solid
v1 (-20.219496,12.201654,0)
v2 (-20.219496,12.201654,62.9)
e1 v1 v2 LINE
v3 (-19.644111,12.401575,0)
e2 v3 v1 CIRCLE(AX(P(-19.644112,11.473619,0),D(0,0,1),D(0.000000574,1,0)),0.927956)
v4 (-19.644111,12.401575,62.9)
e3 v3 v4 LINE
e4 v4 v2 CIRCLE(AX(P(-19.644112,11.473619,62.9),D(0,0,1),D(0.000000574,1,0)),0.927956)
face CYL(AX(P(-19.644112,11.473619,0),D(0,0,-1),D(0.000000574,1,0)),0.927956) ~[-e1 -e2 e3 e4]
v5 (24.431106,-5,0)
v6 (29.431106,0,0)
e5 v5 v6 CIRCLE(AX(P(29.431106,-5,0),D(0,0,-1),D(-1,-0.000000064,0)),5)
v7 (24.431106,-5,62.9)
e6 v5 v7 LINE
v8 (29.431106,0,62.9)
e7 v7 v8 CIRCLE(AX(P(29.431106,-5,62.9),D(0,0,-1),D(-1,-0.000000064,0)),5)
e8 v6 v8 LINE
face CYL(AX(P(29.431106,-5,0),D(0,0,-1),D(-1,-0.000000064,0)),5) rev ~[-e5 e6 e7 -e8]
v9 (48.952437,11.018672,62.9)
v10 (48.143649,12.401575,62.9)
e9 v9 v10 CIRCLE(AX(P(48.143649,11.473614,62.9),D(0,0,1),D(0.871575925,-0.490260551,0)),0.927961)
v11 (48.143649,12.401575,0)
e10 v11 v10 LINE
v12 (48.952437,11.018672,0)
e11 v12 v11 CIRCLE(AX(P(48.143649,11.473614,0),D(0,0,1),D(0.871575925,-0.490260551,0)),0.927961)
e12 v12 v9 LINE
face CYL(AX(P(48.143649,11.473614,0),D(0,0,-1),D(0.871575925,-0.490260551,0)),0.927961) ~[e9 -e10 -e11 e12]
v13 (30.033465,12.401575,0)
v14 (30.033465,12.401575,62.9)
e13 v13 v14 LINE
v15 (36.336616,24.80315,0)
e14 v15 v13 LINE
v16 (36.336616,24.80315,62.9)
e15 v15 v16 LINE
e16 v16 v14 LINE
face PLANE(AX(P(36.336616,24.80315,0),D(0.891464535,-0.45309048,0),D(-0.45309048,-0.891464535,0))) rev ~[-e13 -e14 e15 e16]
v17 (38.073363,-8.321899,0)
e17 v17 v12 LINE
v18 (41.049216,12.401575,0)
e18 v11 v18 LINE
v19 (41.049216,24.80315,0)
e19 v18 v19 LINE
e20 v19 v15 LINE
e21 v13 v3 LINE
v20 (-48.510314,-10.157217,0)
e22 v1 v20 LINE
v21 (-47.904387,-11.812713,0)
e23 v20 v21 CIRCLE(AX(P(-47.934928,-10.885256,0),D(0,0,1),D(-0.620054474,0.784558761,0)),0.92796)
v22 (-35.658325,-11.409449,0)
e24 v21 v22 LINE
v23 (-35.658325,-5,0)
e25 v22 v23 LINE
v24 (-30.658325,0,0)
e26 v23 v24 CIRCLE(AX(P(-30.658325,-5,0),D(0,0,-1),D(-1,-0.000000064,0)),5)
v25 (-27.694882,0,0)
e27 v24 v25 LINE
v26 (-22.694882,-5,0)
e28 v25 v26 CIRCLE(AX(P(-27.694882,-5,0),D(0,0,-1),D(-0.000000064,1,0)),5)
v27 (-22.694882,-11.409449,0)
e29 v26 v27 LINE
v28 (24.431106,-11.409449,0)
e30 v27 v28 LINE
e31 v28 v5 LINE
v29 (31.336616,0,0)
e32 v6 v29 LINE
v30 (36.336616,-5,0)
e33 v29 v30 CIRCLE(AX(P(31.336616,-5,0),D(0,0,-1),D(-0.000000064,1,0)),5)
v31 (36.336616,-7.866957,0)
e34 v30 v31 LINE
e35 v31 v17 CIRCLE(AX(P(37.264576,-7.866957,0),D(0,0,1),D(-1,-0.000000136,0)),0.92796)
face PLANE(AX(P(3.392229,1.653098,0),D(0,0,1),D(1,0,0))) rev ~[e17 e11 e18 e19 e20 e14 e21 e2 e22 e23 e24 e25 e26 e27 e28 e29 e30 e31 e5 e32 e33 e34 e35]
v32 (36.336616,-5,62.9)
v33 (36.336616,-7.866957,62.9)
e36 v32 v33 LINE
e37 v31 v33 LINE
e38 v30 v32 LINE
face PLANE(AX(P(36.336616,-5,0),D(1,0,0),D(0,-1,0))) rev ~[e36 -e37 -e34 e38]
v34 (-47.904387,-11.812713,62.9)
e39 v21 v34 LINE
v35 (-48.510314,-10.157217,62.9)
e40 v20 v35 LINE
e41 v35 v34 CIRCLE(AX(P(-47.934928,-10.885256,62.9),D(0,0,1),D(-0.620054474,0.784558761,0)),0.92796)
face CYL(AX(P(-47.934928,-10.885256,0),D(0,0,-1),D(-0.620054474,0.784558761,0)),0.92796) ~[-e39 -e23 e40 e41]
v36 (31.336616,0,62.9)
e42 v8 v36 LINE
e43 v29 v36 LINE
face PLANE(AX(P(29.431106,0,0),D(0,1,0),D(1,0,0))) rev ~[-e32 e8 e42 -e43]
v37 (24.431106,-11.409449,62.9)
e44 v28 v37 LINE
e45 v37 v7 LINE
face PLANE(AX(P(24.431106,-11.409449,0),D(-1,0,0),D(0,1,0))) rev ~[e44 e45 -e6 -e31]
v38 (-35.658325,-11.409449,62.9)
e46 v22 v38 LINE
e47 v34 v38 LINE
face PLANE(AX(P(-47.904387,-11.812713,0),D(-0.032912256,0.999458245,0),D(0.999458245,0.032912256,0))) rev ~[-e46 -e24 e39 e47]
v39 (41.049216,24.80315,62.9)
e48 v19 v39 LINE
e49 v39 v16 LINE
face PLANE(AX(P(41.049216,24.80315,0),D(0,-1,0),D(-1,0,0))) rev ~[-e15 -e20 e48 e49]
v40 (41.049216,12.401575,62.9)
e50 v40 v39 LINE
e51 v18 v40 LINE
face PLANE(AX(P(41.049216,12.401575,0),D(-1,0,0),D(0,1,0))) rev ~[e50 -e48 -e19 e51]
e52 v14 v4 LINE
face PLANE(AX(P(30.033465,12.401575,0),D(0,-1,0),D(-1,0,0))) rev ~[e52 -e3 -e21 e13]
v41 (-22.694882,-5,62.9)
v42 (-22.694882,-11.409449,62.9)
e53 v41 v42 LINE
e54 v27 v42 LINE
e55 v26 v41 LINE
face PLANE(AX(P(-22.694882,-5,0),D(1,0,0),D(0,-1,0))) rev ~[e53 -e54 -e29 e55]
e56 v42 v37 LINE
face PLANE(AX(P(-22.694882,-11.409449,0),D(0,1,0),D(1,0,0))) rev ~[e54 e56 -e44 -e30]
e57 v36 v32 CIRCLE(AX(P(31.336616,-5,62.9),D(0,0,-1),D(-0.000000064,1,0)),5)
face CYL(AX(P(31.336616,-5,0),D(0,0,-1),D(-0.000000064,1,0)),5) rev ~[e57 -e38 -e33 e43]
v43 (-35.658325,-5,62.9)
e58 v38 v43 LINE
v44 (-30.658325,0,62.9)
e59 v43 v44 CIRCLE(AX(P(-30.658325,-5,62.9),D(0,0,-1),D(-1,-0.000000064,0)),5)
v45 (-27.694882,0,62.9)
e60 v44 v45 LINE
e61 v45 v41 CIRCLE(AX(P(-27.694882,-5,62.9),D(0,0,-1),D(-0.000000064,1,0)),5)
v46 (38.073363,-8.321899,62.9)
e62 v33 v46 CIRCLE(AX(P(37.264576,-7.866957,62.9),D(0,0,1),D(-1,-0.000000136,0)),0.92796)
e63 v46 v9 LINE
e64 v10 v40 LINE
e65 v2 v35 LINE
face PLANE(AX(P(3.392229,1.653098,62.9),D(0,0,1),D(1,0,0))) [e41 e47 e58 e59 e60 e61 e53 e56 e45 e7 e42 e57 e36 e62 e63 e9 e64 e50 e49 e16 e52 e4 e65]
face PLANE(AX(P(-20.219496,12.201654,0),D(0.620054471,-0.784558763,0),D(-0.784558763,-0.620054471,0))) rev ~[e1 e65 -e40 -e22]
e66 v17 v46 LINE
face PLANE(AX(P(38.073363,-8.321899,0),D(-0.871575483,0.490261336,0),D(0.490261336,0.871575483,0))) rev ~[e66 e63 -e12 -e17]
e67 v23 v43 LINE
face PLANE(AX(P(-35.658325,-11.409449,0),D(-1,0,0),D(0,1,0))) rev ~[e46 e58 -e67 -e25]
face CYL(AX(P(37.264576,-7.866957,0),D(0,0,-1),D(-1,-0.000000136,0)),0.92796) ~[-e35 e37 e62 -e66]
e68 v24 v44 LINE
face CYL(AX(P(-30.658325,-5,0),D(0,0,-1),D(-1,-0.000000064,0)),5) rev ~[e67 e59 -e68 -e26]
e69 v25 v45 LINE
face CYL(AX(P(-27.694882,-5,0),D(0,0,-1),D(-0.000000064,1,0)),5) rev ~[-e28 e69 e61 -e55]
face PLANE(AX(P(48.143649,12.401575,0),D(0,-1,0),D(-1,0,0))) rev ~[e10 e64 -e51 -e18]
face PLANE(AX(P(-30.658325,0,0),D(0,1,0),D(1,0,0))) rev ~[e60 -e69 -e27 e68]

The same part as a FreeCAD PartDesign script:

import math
import FreeCAD as App
import Part
import Sketcher

doc = App.newDocument("Part")
body = doc.addObject("PartDesign::Body", "Body")

sketch1 = body.newObject("Sketcher::SketchObject", "Sketch")
sketch1.AttachmentSupport = (doc.getObject("XY_Plane"), [""])
sketch1.MapMode = "FlatFace"
sketch1.addGeometry(Part.LineSegment(App.Vector(-20.219496, 12.201654, 0), App.Vector(-48.510314, -10.157217, 0)), False)
sketch1.addGeometry(Part.ArcOfCircle(Part.Circle(App.Vector(-47.934928, -10.885256, 0), App.Vector(0, 0, 1), 0.92796), math.radians(128.320113), math.radians(271.886083)), False)
sketch1.addGeometry(Part.LineSegment(App.Vector(-47.904387, -11.812713, 0), App.Vector(-35.658325, -11.409449, 0)), False)
sketch1.addGeometry(Part.LineSegment(App.Vector(-35.658325, -11.409449, 0), App.Vector(-35.658325, -5, 0)), False)
sketch1.addGeometry(Part.ArcOfCircle(Part.Circle(App.Vector(-30.658325, -5, 0), App.Vector(0, 0, 1), 5), math.radians(89.999996), math.radians(180.000004)), False)
sketch1.addGeometry(Part.LineSegment(App.Vector(-30.658325, 0, 0), App.Vector(-27.694882, 0, 0)), False)
sketch1.addGeometry(Part.ArcOfCircle(Part.Circle(App.Vector(-27.694882, -5, 0), App.Vector(0, 0, 1), 5), math.radians(-0.000004), math.radians(90.000004)), False)
sketch1.addGeometry(Part.LineSegment(App.Vector(-22.694882, -5, 0), App.Vector(-22.694882, -11.409449, 0)), False)
sketch1.addGeometry(Part.LineSegment(App.Vector(-22.694882, -11.409449, 0), App.Vector(24.431106, -11.409449, 0)), False)
sketch1.addGeometry(Part.LineSegment(App.Vector(24.431106, -11.409449, 0), App.Vector(24.431106, -5, 0)), False)
sketch1.addGeometry(Part.ArcOfCircle(Part.Circle(App.Vector(29.431106, -5, 0), App.Vector(0, 0, 1), 5), math.radians(89.999996), math.radians(180.000004)), False)
sketch1.addGeometry(Part.LineSegment(App.Vector(29.431106, 0, 0), App.Vector(31.336616, 0, 0)), False)
sketch1.addGeometry(Part.ArcOfCircle(Part.Circle(App.Vector(31.336616, -5, 0), App.Vector(0, 0, 1), 5), math.radians(-0.000004), math.radians(90.000004)), False)
sketch1.addGeometry(Part.LineSegment(App.Vector(36.336616, -5, 0), App.Vector(36.336616, -7.866957, 0)), False)
sketch1.addGeometry(Part.ArcOfCircle(Part.Circle(App.Vector(37.264576, -7.866957, 0), App.Vector(0, 0, 1), 0.92796), math.radians(-179.999992), math.radians(-29.357715)), False)
sketch1.addGeometry(Part.LineSegment(App.Vector(38.073363, -8.321899, 0), App.Vector(48.952437, 11.018672, 0)), False)
sketch1.addGeometry(Part.ArcOfCircle(Part.Circle(App.Vector(48.143649, 11.473614, 0), App.Vector(0, 0, 1), 0.927961), math.radians(-29.357708), math.radians(89.999995)), False)
sketch1.addGeometry(Part.LineSegment(App.Vector(48.143649, 12.401575, 0), App.Vector(41.049216, 12.401575, 0)), False)
sketch1.addGeometry(Part.LineSegment(App.Vector(41.049216, 12.401575, 0), App.Vector(41.049216, 24.80315, 0)), False)
sketch1.addGeometry(Part.LineSegment(App.Vector(41.049216, 24.80315, 0), App.Vector(36.336616, 24.80315, 0)), False)
sketch1.addGeometry(Part.LineSegment(App.Vector(36.336616, 24.80315, 0), App.Vector(30.033465, 12.401575, 0)), False)
sketch1.addGeometry(Part.LineSegment(App.Vector(30.033465, 12.401575, 0), App.Vector(-19.644111, 12.401575, 0)), False)
sketch1.addGeometry(Part.ArcOfCircle(Part.Circle(App.Vector(-19.644112, 11.473619, 0), App.Vector(0, 0, 1), 0.927956), math.radians(89.999967), math.radians(128.320218)), False)
sketch1.addConstraint(Sketcher.Constraint("Coincident", 0, 2, 1, 1))
sketch1.addConstraint(Sketcher.Constraint("Coincident", 1, 2, 2, 1))
sketch1.addConstraint(Sketcher.Constraint("Coincident", 2, 2, 3, 1))
sketch1.addConstraint(Sketcher.Constraint("Coincident", 3, 2, 4, 2))
sketch1.addConstraint(Sketcher.Constraint("Coincident", 4, 1, 5, 1))
sketch1.addConstraint(Sketcher.Constraint("Coincident", 5, 2, 6, 2))
sketch1.addConstraint(Sketcher.Constraint("Coincident", 6, 1, 7, 1))
sketch1.addConstraint(Sketcher.Constraint("Coincident", 7, 2, 8, 1))
sketch1.addConstraint(Sketcher.Constraint("Coincident", 8, 2, 9, 1))
sketch1.addConstraint(Sketcher.Constraint("Coincident", 9, 2, 10, 2))
sketch1.addConstraint(Sketcher.Constraint("Coincident", 10, 1, 11, 1))
sketch1.addConstraint(Sketcher.Constraint("Coincident", 11, 2, 12, 2))
sketch1.addConstraint(Sketcher.Constraint("Coincident", 12, 1, 13, 1))
sketch1.addConstraint(Sketcher.Constraint("Coincident", 13, 2, 14, 1))
sketch1.addConstraint(Sketcher.Constraint("Coincident", 14, 2, 15, 1))
sketch1.addConstraint(Sketcher.Constraint("Coincident", 15, 2, 16, 1))
sketch1.addConstraint(Sketcher.Constraint("Coincident", 16, 2, 17, 1))
sketch1.addConstraint(Sketcher.Constraint("Coincident", 17, 2, 18, 1))
sketch1.addConstraint(Sketcher.Constraint("Coincident", 18, 2, 19, 1))
sketch1.addConstraint(Sketcher.Constraint("Coincident", 19, 2, 20, 1))
sketch1.addConstraint(Sketcher.Constraint("Coincident", 20, 2, 21, 1))
sketch1.addConstraint(Sketcher.Constraint("Coincident", 21, 2, 22, 1))
sketch1.addConstraint(Sketcher.Constraint("Coincident", 22, 2, 0, 1))
sketch1.addConstraint(Sketcher.Constraint("Vertical", 3))
sketch1.addConstraint(Sketcher.Constraint("Horizontal", 5))
sketch1.addConstraint(Sketcher.Constraint("Vertical", 7))
sketch1.addConstraint(Sketcher.Constraint("Horizontal", 8))
sketch1.addConstraint(Sketcher.Constraint("Vertical", 9))
sketch1.addConstraint(Sketcher.Constraint("Horizontal", 11))
sketch1.addConstraint(Sketcher.Constraint("Vertical", 13))
sketch1.addConstraint(Sketcher.Constraint("Horizontal", 17))
sketch1.addConstraint(Sketcher.Constraint("Vertical", 18))
sketch1.addConstraint(Sketcher.Constraint("Horizontal", 19))
sketch1.addConstraint(Sketcher.Constraint("Horizontal", 21))
sketch1.addConstraint(Sketcher.Constraint("PointOnObject", 4, 1, -1))
sketch1.addConstraint(Sketcher.Constraint("PointOnObject", 10, 1, -1))
sketch1.addConstraint(Sketcher.Constraint("Radius", 4, 5.0))
sketch1.addConstraint(Sketcher.Constraint("Radius", 6, 5.0))
sketch1.addConstraint(Sketcher.Constraint("Radius", 10, 5.0))
sketch1.addConstraint(Sketcher.Constraint("Radius", 12, 5.0))
sketch1.addConstraint(Sketcher.Constraint("DistanceY", 3, 2, -1, 1, 5.0))
sketch1.addConstraint(Sketcher.Constraint("DistanceY", 6, 1, -1, 1, 5.0))
sketch1.addConstraint(Sketcher.Constraint("DistanceY", 9, 2, -1, 1, 5.0))
sketch1.addConstraint(Sketcher.Constraint("DistanceY", 12, 1, -1, 1, 5.0))
sketch1.addConstraint(Sketcher.Constraint("DistanceX", 3, 2, 4, 1, 5.0))
sketch1.addConstraint(Sketcher.Constraint("DistanceX", 5, 2, 6, 1, 5.0))
sketch1.addConstraint(Sketcher.Constraint("DistanceX", 9, 2, 10, 1, 5.0))
sketch1.addConstraint(Sketcher.Constraint("DistanceX", 11, 2, 12, 1, 5.0))
sketch1.addConstraint(Sketcher.Constraint("Radius", 1, 0.92796))
sketch1.addConstraint(Sketcher.Constraint("Radius", 14, 0.92796))
sketch1.addConstraint(Sketcher.Constraint("Radius", 16, 0.927961))
sketch1.addConstraint(Sketcher.Constraint("DistanceX", 19, 2, 19, 1, 4.7126))
sketch1.addConstraint(Sketcher.Constraint("Radius", 22, 0.927956))
sketch1.addConstraint(Sketcher.Constraint("Distance", 2, 12.2527))
sketch1.addConstraint(Sketcher.Constraint("DistanceX", 11, 1, 11, 2, 1.90551))
sketch1.addConstraint(Sketcher.Constraint("DistanceY", 3, 1, 3, 2, 6.409449))
sketch1.addConstraint(Sketcher.Constraint("DistanceY", 7, 2, 7, 1, 6.409449))
sketch1.addConstraint(Sketcher.Constraint("DistanceY", 14, 2, -1, 1, 8.321899))
sketch1.addConstraint(Sketcher.Constraint("DistanceX", 4, 3, 14, 3, 67.922901))
sketch1.addConstraint(Sketcher.Constraint("DistanceY", 1, 3, 14, 3, 3.018299))
sketch1.addConstraint(Sketcher.Constraint("DistanceX", 11, 2, 17, 2, 9.7126))
sketch1.addConstraint(Sketcher.Constraint("DistanceX", 5, 1, 5, 2, 2.963443))
sketch1.addConstraint(Sketcher.Constraint("DistanceX", 17, 2, 17, 1, 7.094433))
sketch1.addConstraint(Sketcher.Constraint("DistanceX", 21, 2, 21, 1, 49.677576))
sketch1.addConstraint(Sketcher.Constraint("DistanceY", 13, 2, 13, 1, 2.866957))
sketch1.addConstraint(Sketcher.Constraint("DistanceY", 18, 1, 18, 2, 12.401575))
sketch1.addConstraint(Sketcher.Constraint("DistanceX", 1, 3, -1, 1, 47.934928))
sketch1.addConstraint(Sketcher.Constraint("DistanceX", 6, 3, -1, 1, 27.694882))
sketch1.addConstraint(Sketcher.Constraint("DistanceX", -1, 1, 16, 3, 48.143649))
sketch1.addConstraint(Sketcher.Constraint("DistanceX", 22, 3, -1, 1, 19.644112))
sketch1.addConstraint(Sketcher.Constraint("DistanceY", -1, 1, 22, 3, 11.473619))
sketch1.addConstraint(Sketcher.Constraint("DistanceY", -1, 1, 18, 2, 24.80315))
sketch1.addConstraint(Sketcher.Constraint("DistanceX", 21, 2, -1, 1, 19.644111))
sketch1.addConstraint(Sketcher.Constraint("DistanceY", 14, 3, 16, 3, 19.340571))
sketch1.addConstraint(Sketcher.Constraint("DistanceY", 1, 3, 0, 2, 0.728039))
sketch1.addConstraint(Sketcher.Constraint("DistanceX", 16, 3, 15, 2, 0.808788))
sketch1.addConstraint(Sketcher.Constraint("DistanceY", 22, 2, 21, 2, 0.199921))
pad1 = body.newObject("PartDesign::Pad", "Pad")
pad1.Profile = sketch1
pad1.Length = 62.9

doc.recompute()
